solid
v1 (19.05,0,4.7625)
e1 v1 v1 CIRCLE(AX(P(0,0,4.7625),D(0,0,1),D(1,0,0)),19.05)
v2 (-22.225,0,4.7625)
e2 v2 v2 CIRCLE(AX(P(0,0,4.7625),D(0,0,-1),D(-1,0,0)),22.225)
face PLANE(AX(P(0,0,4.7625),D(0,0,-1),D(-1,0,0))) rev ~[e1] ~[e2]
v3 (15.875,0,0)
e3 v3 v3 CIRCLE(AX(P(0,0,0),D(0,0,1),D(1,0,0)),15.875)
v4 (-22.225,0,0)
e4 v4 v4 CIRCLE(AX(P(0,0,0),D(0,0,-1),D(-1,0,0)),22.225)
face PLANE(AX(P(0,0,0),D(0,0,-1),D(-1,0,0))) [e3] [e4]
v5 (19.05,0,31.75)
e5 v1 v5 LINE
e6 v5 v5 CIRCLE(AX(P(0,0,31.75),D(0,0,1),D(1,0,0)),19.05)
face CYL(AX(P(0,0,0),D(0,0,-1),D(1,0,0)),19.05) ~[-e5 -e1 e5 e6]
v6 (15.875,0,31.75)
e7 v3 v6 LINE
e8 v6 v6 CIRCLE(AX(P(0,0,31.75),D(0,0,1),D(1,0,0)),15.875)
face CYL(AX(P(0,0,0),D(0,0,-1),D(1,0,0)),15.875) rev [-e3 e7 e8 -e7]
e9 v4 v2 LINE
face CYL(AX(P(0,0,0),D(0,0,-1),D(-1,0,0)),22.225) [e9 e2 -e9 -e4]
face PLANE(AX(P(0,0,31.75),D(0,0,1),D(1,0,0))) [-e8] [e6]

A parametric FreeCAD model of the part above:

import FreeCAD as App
import Part
import Sketcher
from FreeCAD import Vector
Q = App.Units.Quantity

doc = App.newDocument("Part")
params = doc.addObject("Spreadsheet::Sheet", "Params")
for row, (alias, value) in enumerate([
    ("sketch1_diameter", "1.5 in"),
    ("sketch1_diameter2", "1.25 in"),
    ("pad1_length", "1.25 in"),
    ("sketch2_diameter", "1.75 in"),
    ("sketch2_diameter2", "1.5 in"),
    ("pad2_length", "0.1875 in"),
], start=1):
    params.set(f"A{row}", alias)
    params.set(f"B{row}", "=" + value)
    params.setAlias(f"B{row}", alias)

body = doc.addObject("PartDesign::Body", "Body")

# Sketch on XY plane
sketch1 = body.newObject("Sketcher::SketchObject", "Sketch")
sketch1.AttachmentSupport = (doc.getObject("XY_Plane"), [""])
sketch1.MapMode = "FlatFace"
sketch1.addGeometry(Part.Circle(Vector(0, 0, 0), Vector(0, 0, 1), 19), False)
sketch1.addGeometry(Part.Circle(Vector(0, 0, 0), Vector(0, 0, 1), 16), False)
sketch1.addConstraint(Sketcher.Constraint("Coincident", 0, 3, -1, 1))
sketch1.addConstraint(Sketcher.Constraint("Coincident", 1, 3, -1, 1))
sketch1.addConstraint(Sketcher.Constraint("Diameter", 0, Q("1.5 in")))
sketch1.addConstraint(Sketcher.Constraint("Diameter", 1, Q("1.25 in")))
sketch1.setExpression("Constraints[2]", "Params.sketch1_diameter")
sketch1.setExpression("Constraints[3]", "Params.sketch1_diameter2")
pad1 = body.newObject("PartDesign::Pad", "Pad")
pad1.Profile = sketch1
pad1.setExpression("Length", "Params.pad1_length")

# Sketch on XY plane
sketch2 = body.newObject("Sketcher::SketchObject", "Sketch001")
sketch2.AttachmentSupport = (doc.getObject("XY_Plane"), [""])
sketch2.MapMode = "FlatFace"
sketch2.addGeometry(Part.Circle(Vector(0, 0, 0), Vector(0, 0, 1), 22), False)
sketch2.addGeometry(Part.Circle(Vector(0, 0, 0), Vector(0, 0, 1), 19), False)
sketch2.addConstraint(Sketcher.Constraint("Coincident", 0, 3, -1, 1))
sketch2.addConstraint(Sketcher.Constraint("Coincident", 1, 3, -1, 1))
sketch2.addConstraint(Sketcher.Constraint("Diameter", 0, Q("1.75 in")))
sketch2.addConstraint(Sketcher.Constraint("Diameter", 1, Q("1.5 in")))
sketch2.setExpression("Constraints[2]", "Params.sketch2_diameter")
sketch2.setExpression("Constraints[3]", "Params.sketch2_diameter2")
pad2 = body.newObject("PartDesign::Pad", "Pad001")
pad2.Profile = sketch2
pad2.setExpression("Length", "Params.pad2_length")

doc.recompute()
